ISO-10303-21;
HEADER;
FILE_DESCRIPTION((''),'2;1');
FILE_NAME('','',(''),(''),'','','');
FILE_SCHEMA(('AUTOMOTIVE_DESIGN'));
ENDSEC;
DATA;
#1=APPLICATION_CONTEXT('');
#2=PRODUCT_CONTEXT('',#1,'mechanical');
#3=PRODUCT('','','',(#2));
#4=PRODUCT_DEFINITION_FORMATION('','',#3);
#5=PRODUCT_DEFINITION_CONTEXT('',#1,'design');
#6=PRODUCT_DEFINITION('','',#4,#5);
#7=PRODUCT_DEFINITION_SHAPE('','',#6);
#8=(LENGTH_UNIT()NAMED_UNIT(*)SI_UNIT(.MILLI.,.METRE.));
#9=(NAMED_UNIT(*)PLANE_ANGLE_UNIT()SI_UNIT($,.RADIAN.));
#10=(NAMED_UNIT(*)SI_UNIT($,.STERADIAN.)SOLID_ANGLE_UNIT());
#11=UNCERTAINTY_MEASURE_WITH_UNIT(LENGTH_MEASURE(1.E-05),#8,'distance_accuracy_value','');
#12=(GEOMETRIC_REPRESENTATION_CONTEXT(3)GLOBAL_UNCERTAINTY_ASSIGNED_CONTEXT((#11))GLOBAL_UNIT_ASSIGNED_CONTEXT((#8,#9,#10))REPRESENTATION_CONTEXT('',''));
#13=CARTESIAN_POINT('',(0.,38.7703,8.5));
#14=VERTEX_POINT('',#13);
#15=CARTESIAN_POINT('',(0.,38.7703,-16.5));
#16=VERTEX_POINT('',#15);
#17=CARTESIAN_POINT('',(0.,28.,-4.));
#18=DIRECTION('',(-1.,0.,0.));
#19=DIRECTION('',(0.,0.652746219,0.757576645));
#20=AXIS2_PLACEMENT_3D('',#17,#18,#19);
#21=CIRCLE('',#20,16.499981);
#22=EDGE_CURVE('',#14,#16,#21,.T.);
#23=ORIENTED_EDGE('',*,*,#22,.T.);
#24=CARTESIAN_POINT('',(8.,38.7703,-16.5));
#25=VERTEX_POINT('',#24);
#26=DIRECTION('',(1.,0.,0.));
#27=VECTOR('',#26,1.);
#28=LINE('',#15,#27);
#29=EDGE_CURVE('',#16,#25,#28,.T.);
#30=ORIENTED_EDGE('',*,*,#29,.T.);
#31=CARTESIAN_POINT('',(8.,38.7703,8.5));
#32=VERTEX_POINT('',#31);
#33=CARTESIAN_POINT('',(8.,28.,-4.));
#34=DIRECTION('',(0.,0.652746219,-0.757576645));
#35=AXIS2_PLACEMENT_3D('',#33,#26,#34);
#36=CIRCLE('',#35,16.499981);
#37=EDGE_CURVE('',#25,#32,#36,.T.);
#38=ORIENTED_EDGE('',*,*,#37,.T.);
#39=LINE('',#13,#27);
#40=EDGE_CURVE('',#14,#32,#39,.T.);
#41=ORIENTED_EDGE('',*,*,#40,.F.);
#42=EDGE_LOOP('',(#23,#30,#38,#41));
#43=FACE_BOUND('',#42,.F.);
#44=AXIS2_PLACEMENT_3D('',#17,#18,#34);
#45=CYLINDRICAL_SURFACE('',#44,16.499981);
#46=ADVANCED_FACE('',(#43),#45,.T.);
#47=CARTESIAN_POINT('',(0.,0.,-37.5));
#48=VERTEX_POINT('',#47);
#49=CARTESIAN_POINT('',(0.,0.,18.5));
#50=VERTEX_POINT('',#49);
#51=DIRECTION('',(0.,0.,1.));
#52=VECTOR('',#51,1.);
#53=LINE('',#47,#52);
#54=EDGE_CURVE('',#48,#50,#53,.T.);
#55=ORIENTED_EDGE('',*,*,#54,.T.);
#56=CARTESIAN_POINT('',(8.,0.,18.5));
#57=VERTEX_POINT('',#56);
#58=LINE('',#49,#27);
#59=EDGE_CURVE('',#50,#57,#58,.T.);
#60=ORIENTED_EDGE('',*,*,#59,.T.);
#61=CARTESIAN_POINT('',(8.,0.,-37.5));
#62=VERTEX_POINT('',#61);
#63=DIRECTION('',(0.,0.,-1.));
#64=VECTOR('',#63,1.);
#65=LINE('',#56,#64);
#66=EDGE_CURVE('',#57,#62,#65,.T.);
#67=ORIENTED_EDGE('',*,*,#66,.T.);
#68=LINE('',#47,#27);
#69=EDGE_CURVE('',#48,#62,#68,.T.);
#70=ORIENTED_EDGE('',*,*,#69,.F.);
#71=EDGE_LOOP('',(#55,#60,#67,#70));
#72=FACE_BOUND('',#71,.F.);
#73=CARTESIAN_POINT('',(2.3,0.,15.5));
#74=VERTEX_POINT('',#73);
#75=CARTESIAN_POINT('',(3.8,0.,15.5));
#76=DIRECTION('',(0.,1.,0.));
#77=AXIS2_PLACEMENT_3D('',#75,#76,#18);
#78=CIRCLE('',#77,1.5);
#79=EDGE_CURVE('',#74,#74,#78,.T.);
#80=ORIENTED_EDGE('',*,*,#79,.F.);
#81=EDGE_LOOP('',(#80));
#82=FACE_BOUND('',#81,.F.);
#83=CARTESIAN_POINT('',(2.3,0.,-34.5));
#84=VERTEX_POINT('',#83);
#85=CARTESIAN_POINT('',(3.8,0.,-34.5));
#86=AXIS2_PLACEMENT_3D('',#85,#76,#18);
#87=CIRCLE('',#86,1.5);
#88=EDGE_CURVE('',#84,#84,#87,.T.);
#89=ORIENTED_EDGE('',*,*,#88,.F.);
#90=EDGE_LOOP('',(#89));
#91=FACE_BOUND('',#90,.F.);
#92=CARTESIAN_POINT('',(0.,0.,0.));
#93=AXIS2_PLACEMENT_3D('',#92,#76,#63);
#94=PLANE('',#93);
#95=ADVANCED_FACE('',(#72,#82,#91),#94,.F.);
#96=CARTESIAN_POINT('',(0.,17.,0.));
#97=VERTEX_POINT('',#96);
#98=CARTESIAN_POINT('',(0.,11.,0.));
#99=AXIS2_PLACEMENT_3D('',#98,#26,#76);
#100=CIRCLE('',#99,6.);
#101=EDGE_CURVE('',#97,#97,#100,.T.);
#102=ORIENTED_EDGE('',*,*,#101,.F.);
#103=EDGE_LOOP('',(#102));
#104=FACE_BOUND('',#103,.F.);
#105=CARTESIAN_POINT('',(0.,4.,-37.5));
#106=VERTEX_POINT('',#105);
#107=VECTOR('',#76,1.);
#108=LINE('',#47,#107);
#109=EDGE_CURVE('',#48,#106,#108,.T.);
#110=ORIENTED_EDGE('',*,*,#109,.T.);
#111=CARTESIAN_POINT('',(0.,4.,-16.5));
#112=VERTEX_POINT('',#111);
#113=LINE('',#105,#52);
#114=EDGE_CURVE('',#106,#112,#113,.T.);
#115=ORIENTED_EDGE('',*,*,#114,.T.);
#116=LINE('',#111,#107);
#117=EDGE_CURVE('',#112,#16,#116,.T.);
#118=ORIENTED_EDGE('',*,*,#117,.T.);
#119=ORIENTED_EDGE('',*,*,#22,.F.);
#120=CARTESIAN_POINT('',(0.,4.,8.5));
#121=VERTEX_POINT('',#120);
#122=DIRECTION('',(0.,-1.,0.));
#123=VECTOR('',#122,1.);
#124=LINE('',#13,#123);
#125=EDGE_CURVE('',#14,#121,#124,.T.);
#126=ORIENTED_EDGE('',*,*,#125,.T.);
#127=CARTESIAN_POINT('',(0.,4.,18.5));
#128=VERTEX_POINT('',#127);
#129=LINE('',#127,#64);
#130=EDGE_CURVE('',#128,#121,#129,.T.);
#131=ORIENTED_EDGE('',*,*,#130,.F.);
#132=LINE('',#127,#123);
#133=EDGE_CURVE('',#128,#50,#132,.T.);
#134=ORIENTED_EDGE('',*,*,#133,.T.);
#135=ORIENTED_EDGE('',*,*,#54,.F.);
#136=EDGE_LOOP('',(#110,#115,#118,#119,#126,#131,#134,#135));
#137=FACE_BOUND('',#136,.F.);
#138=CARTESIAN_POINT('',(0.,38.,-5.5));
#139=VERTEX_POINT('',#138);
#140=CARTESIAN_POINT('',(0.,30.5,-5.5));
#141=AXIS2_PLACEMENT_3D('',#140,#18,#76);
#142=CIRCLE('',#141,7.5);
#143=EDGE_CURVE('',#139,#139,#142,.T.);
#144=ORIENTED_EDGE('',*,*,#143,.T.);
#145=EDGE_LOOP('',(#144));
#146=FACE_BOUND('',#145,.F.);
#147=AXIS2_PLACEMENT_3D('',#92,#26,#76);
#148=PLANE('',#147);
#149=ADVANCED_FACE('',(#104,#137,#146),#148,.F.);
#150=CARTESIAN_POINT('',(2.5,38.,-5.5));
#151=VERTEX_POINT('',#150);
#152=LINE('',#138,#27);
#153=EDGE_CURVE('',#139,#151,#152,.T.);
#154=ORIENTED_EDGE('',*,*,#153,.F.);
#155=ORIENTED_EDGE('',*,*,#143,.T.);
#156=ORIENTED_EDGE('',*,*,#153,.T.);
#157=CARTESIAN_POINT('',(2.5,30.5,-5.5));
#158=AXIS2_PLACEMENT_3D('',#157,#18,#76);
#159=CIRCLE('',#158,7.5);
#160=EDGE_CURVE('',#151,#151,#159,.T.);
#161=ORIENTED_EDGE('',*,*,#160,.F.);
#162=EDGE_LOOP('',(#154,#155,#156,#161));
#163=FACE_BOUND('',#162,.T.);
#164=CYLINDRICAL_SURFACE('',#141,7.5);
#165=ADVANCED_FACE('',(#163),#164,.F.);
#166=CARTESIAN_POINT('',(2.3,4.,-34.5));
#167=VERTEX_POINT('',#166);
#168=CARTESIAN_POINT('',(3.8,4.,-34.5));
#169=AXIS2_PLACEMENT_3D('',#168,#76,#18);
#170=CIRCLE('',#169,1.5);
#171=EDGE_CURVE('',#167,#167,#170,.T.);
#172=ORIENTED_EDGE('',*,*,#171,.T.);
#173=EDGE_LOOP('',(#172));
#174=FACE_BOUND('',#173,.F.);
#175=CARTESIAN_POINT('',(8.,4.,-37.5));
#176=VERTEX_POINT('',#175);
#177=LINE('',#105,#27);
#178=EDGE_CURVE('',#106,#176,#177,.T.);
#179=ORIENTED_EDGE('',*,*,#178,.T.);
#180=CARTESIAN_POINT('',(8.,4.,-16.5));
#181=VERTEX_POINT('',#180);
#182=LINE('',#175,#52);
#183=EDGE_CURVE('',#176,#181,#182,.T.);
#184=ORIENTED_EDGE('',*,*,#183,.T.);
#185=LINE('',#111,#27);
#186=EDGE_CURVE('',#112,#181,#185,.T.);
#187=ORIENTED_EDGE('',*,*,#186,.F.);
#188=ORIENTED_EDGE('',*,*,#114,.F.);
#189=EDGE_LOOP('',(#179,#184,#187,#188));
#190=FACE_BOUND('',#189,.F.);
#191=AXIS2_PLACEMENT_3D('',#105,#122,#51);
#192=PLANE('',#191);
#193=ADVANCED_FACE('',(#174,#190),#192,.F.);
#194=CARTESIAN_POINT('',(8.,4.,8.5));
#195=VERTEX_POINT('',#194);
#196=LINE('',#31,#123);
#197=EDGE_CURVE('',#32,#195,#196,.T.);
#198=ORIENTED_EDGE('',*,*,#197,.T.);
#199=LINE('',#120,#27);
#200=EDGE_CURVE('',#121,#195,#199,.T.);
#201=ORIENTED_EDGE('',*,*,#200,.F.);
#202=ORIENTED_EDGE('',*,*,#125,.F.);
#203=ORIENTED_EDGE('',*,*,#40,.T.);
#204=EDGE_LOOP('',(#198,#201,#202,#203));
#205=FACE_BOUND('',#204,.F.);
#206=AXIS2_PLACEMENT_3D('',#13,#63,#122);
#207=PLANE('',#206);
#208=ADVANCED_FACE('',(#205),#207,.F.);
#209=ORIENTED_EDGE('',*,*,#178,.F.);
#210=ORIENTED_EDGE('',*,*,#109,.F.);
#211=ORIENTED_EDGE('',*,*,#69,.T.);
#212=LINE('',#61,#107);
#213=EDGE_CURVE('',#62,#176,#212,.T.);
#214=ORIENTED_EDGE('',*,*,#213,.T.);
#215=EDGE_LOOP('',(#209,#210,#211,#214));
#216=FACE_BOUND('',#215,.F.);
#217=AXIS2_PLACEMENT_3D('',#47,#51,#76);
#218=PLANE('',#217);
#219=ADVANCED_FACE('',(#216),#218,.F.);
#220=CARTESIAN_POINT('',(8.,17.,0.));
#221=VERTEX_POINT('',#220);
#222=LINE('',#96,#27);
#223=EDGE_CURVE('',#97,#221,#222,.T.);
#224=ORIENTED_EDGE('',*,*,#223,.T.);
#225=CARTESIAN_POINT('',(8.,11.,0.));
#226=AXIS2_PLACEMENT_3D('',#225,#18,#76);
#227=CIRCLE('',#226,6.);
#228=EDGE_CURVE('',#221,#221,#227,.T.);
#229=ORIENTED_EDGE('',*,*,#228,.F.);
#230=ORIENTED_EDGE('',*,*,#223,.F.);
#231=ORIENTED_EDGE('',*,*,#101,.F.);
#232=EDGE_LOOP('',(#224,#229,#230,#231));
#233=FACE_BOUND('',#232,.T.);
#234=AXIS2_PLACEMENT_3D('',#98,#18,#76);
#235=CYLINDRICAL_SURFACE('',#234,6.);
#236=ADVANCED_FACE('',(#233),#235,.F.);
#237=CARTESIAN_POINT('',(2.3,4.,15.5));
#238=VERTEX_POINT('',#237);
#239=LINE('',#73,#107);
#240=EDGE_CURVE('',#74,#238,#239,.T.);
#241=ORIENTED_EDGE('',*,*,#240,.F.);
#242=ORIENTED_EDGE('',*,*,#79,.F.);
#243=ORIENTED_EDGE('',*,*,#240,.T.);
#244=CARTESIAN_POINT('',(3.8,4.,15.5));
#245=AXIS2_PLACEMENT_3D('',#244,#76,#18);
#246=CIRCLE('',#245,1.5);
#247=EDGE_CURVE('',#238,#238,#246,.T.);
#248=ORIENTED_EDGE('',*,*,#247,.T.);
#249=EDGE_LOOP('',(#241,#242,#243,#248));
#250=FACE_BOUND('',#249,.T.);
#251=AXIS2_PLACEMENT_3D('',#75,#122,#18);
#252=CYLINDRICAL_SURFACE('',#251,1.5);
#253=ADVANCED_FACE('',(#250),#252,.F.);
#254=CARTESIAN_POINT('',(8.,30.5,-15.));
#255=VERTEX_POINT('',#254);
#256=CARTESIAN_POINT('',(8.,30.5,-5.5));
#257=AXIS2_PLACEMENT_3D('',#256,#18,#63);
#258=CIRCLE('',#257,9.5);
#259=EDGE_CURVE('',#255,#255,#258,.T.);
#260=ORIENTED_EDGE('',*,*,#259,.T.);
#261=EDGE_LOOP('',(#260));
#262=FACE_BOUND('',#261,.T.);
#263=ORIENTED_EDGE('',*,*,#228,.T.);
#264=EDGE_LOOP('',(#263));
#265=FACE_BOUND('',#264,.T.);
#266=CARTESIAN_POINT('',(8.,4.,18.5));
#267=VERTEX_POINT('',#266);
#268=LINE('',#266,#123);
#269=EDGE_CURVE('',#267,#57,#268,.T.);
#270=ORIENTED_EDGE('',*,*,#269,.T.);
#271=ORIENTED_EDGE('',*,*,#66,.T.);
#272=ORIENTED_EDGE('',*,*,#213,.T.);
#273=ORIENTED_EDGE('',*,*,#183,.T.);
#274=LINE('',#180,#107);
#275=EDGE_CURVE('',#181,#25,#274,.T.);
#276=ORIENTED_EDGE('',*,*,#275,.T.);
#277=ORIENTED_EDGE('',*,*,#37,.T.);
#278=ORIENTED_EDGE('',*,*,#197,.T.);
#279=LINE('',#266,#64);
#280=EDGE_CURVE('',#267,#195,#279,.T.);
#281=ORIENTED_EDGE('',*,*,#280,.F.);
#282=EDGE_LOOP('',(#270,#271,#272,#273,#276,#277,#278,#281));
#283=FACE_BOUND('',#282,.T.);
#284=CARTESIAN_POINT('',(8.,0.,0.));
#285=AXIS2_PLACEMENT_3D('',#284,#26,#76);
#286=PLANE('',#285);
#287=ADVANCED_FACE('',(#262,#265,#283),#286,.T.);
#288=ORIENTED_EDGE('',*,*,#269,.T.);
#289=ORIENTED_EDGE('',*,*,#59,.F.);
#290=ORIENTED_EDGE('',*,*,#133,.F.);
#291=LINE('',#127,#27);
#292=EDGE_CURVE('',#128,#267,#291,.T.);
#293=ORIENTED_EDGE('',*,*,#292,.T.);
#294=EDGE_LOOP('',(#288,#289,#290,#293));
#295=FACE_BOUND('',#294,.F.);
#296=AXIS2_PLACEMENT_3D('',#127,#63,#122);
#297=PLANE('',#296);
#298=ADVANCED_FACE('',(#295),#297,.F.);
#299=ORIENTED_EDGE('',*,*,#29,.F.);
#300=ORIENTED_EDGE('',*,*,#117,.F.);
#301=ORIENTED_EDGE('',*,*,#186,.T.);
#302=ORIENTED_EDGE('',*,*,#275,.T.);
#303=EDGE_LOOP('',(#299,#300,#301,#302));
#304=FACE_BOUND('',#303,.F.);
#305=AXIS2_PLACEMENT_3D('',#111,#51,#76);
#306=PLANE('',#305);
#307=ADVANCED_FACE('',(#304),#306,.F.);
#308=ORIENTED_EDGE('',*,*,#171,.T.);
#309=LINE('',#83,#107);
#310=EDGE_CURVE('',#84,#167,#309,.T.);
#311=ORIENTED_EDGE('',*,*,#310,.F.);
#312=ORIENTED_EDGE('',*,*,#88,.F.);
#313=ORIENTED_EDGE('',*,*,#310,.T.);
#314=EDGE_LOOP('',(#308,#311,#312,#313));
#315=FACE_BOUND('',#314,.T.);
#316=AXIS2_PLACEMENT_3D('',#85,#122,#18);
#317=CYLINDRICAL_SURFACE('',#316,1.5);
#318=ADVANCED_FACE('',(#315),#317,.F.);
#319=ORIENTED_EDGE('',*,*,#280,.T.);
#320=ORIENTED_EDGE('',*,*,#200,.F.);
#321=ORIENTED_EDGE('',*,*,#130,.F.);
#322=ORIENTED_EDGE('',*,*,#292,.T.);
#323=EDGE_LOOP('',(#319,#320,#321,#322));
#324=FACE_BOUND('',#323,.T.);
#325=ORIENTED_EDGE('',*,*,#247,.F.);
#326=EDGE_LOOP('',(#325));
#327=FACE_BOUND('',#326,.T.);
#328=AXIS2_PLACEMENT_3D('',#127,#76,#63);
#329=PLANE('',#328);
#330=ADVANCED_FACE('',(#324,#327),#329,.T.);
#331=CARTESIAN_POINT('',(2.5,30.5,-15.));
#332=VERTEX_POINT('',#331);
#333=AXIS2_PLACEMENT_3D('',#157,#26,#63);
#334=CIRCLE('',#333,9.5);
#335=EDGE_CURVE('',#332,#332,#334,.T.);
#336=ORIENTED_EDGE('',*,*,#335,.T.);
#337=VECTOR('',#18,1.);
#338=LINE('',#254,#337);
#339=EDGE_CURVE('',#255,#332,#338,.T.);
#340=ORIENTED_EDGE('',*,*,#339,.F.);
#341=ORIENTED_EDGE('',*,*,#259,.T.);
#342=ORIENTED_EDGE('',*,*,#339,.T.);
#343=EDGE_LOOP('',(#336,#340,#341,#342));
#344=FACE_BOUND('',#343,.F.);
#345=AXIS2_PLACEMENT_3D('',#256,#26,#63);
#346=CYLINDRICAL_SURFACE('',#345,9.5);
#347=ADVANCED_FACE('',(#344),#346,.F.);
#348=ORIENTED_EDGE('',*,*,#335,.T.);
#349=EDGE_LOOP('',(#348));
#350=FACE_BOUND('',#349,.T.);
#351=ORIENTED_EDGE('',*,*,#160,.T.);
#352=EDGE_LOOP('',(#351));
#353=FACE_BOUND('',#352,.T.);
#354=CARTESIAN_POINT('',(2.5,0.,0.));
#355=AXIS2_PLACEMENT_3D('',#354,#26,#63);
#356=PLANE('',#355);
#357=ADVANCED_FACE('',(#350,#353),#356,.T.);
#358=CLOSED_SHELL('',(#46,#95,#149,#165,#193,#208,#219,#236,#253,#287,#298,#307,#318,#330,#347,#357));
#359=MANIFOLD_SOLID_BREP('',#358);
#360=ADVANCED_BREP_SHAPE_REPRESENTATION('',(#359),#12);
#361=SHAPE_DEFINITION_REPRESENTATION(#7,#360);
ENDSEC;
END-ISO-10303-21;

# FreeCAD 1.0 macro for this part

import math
import FreeCAD as App
import Part
import Sketcher
Q = App.Units.Quantity

doc = App.newDocument("Part")
params = doc.addObject("Spreadsheet::Sheet", "Params")
for row, (alias, value) in enumerate([
    ("sketch1_diameter", "15 mm"),
    ("sketch1_diameter2", "12 mm"),
    ("sketch1_radius", "16.5 mm"),
    ("sketch1_width", "4 mm"),
    ("sketch1_height", "56 mm"),
    ("pad1_length", "8 mm"),
    ("sketch2_diameter", "19 mm"),
    ("pocket1_length", "5.5 mm"),
    ("sketch3_diameter", "3 mm"),
    ("pocket2_length", "4 mm"),
], start=1):
    params.set(f"A{row}", alias)
    params.set(f"B{row}", "=" + value)
    params.setAlias(f"B{row}", alias)

body = doc.addObject("PartDesign::Body", "Body")

sketch1 = body.newObject("Sketcher::SketchObject", "Sketch")
sketch1.AttachmentSupport = (doc.getObject("YZ_Plane"), [""])
sketch1.MapMode = "FlatFace"
sketch1.addGeometry([
    Part.ArcOfCircle(Part.Circle(App.Vector(28, -4, 0), App.Vector(0, 0, 1), 16.5), math.radians(-49), math.radians(49)),
    Part.LineSegment(App.Vector(38.8, 8.5, 0), App.Vector(4, 8.5, 0)),
    Part.LineSegment(App.Vector(4, 8.5, 0), App.Vector(4, 18.5, 0)),
    Part.LineSegment(App.Vector(4, 18.5, 0), App.Vector(0, 18.5, 0)),
    Part.LineSegment(App.Vector(0, 18.5, 0), App.Vector(0, -37.5, 0)),
    Part.LineSegment(App.Vector(0, -37.5, 0), App.Vector(4, -37.5, 0)),
    Part.LineSegment(App.Vector(4, -37.5, 0), App.Vector(4, -16.5, 0)),
    Part.LineSegment(App.Vector(4, -16.5, 0), App.Vector(38.8, -16.5, 0)),
    Part.Circle(App.Vector(30.5, -5.5, 0), App.Vector(0, 0, 1), 7.5),
    Part.Circle(App.Vector(11, 0, 0), App.Vector(0, 0, 1), 6),
], False)
sketch1.addConstraint([
    Sketcher.Constraint("Coincident", 0, 2, 1, 1),
    Sketcher.Constraint("Coincident", 1, 2, 2, 1),
    Sketcher.Constraint("Coincident", 2, 2, 3, 1),
    Sketcher.Constraint("Coincident", 3, 2, 4, 1),
    Sketcher.Constraint("Coincident", 4, 2, 5, 1),
    Sketcher.Constraint("Coincident", 5, 2, 6, 1),
    Sketcher.Constraint("Coincident", 6, 2, 7, 1),
    Sketcher.Constraint("Coincident", 7, 2, 0, 1),
    Sketcher.Constraint("Horizontal", 1),
    Sketcher.Constraint("Vertical", 2),
    Sketcher.Constraint("Horizontal", 3),
    Sketcher.Constraint("Vertical", 4),
    Sketcher.Constraint("Horizontal", 5),
    Sketcher.Constraint("Vertical", 6),
    Sketcher.Constraint("Horizontal", 7),
    Sketcher.Constraint("PointOnObject", 9, 3, -1),
    Sketcher.Constraint("PointOnObject", 3, 2, -2),
    Sketcher.Constraint("Vertical", 2, 2, 5, 2),
    Sketcher.Constraint("Vertical", 0, 2, 7, 2),
    Sketcher.Constraint("Diameter", 8, Q("15 mm")),
    Sketcher.Constraint("Diameter", 9, Q("12 mm")),
    Sketcher.Constraint("Radius", 0, Q("16.5 mm")),
    Sketcher.Constraint("DistanceX", 3, 2, 3, 1, Q("4 mm")),
    Sketcher.Constraint("DistanceY", 4, 2, 4, 1, Q("56 mm")),
    Sketcher.Constraint("DistanceX", -1, 1, 0, 3, Q("28 mm")),
    Sketcher.Constraint("DistanceY", 0, 3, -1, 1, Q("4 mm")),
    Sketcher.Constraint("DistanceX", -1, 1, 9, 3, Q("11 mm")),
    Sketcher.Constraint("DistanceY", 7, 2, 8, 3, Q("11 mm")),
    Sketcher.Constraint("DistanceX", -1, 1, 8, 3, Q("30.5 mm")),
    Sketcher.Constraint("DistanceY", 8, 3, -1, 1, Q("5.5 mm")),
    Sketcher.Constraint("DistanceY", -1, 1, 2, 2, Q("18.5 mm")),
])
sketch1.setExpression("Constraints[19]", "Params.sketch1_diameter")
sketch1.setExpression("Constraints[20]", "Params.sketch1_diameter2")
sketch1.setExpression("Constraints[21]", "Params.sketch1_radius")
sketch1.setExpression("Constraints[22]", "Params.sketch1_width")
sketch1.setExpression("Constraints[23]", "Params.sketch1_height")
pad1 = body.newObject("PartDesign::Pad", "Pad")
pad1.Profile = sketch1
pad1.setExpression("Length", "Params.pad1_length")

sketch2 = body.newObject("Sketcher::SketchObject", "Sketch001")
sketch2.AttachmentSupport = (doc.getObject("YZ_Plane"), [""])
sketch2.MapMode = "FlatFace"
sketch2.AttachmentOffset = App.Placement(App.Vector(0, 0, 8), App.Rotation())
sketch2.addGeometry(Part.Circle(App.Vector(30, -6, 0), App.Vector(0, 0, 1), 10), False)
sketch2.addConstraint([
    Sketcher.Constraint("Diameter", 0, Q("19 mm")),
    Sketcher.Constraint("DistanceX", -1, 1, 0, 3, Q("30.5 mm")),
    Sketcher.Constraint("DistanceY", 0, 3, -1, 1, Q("5.5 mm")),
])
sketch2.setExpression("Constraints[0]", "Params.sketch2_diameter")
pocket1 = body.newObject("PartDesign::Pocket", "Pocket")
pocket1.Profile = sketch2
pocket1.setExpression("Length", "Params.pocket1_length")

sketch3 = body.newObject("Sketcher::SketchObject", "Sketch002")
sketch3.AttachmentSupport = (doc.getObject("XZ_Plane"), [""])
sketch3.MapMode = "FlatFace"
sketch3.addGeometry([
    Part.Circle(App.Vector(3.8, 15.5, 0), App.Vector(0, 0, 1), 1.5),
    Part.Circle(App.Vector(3.8, -34.5, 0), App.Vector(0, 0, 1), 1.5),
], False)
sketch3.addConstraint([
    Sketcher.Constraint("Equal", 0, 1),
    Sketcher.Constraint("Vertical", 0, 3, 1, 3),
    Sketcher.Constraint("Diameter", 0, Q("3 mm")),
    Sketcher.Constraint("DistanceY", 1, 3, 0, 3, Q("50 mm")),
    Sketcher.Constraint("DistanceY", -1, 1, 0, 3, Q("15.5 mm")),
    Sketcher.Constraint("DistanceX", -1, 1, 0, 3, Q("3.8 mm")),
])
sketch3.setExpression("Constraints[2]", "Params.sketch3_diameter")
pocket2 = body.newObject("PartDesign::Pocket", "Pocket001")
pocket2.Profile = sketch3
pocket2.setExpression("Length", "Params.pocket2_length")

doc.recompute()
